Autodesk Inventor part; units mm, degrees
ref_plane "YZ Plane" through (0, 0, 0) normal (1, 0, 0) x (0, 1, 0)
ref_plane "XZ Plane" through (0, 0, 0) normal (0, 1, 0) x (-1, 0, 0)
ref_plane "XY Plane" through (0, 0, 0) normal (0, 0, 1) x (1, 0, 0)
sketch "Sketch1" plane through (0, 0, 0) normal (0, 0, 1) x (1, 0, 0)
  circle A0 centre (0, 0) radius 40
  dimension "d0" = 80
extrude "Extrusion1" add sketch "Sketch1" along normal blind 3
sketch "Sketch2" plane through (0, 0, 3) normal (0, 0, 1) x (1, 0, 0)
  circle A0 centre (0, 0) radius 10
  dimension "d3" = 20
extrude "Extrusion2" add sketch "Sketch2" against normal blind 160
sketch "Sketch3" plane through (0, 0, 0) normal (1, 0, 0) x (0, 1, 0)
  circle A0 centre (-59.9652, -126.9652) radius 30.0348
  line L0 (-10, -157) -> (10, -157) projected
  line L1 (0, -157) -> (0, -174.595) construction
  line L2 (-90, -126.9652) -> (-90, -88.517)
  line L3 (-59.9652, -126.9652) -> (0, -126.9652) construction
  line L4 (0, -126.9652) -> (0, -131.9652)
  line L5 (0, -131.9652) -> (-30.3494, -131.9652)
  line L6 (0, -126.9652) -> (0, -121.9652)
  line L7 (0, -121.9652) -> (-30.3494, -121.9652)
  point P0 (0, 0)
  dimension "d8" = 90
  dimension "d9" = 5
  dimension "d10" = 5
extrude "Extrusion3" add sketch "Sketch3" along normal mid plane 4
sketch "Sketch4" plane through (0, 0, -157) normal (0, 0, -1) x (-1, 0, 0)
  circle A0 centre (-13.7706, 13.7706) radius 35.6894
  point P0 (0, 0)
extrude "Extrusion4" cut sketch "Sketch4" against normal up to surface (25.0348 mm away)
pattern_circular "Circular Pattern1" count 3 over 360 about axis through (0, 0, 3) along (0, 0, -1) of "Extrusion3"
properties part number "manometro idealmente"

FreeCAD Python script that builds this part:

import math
import FreeCAD as App
import Part
import Sketcher

doc = App.newDocument("Part")
body = doc.addObject("PartDesign::Body", "Body")

# Sketch on XY plane
sketch1 = doc.addObject("Sketcher::SketchObject", "Sketch")
body.addObject(sketch1)
sketch1.AttachmentSupport = (doc.XY_Plane, [""])
sketch1.MapMode = "FlatFace"
sketch1.addGeometry(Part.Circle(App.Vector(0, 0, 0), App.Vector(0, 0, 1), 40), False)
sketch1.addConstraint([
    Sketcher.Constraint("Coincident", 0, 3, -1, 1),
    Sketcher.Constraint("Diameter", 0, 80.0),
])
pad1 = doc.addObject("PartDesign::Pad", "Pad")
body.addObject(pad1)
pad1.Profile = sketch1
pad1.Length = 3

# Sketch on XY plane
sketch2 = doc.addObject("Sketcher::SketchObject", "Sketch001")
body.addObject(sketch2)
sketch2.AttachmentSupport = (doc.XY_Plane, [""])
sketch2.MapMode = "FlatFace"
sketch2.AttachmentOffset = App.Placement(App.Vector(0, 0, 3), App.Rotation())
sketch2.addGeometry(Part.Circle(App.Vector(0, 0, 0), App.Vector(0, 0, 1), 10), False)
sketch2.addConstraint([
    Sketcher.Constraint("Coincident", 0, 3, -1, 1),
    Sketcher.Constraint("Diameter", 0, 20.0),
])
pad2 = doc.addObject("PartDesign::Pad", "Pad001")
body.addObject(pad2)
pad2.Profile = sketch2
pad2.Length = 160
pad2.Reversed = True

# Sketch on YZ plane
sketch3 = doc.addObject("Sketcher::SketchObject", "Sketch002")
body.addObject(sketch3)
sketch3.AttachmentSupport = (doc.YZ_Plane, [""])
sketch3.MapMode = "FlatFace"
sketch3.addGeometry([
    Part.LineSegment(App.Vector(-30, -132, 0), App.Vector(0, -132, 0)),
    Part.LineSegment(App.Vector(0, -132, 0), App.Vector(0, -122, 0)),
    Part.LineSegment(App.Vector(0, -122, 0), App.Vector(-30, -122, 0)),
    Part.ArcOfCircle(Part.Circle(App.Vector(-60, -127, 0), App.Vector(0, 0, 1), 30), math.radians(10), math.radians(350)),
], False)
sketch3.addConstraint([
    Sketcher.Constraint("Coincident", 0, 2, 1, 1),
    Sketcher.Constraint("Coincident", 1, 2, 2, 1),
    Sketcher.Constraint("Coincident", 2, 2, 3, 1),
    Sketcher.Constraint("Coincident", 3, 2, 0, 1),
    Sketcher.Constraint("Horizontal", 0),
    Sketcher.Constraint("Vertical", 1),
    Sketcher.Constraint("Horizontal", 2),
    Sketcher.Constraint("PointOnObject", 0, 2, -2),
    Sketcher.Constraint("Vertical", 2, 2, 3, 2),
    Sketcher.Constraint("DistanceY", 0, 2, 3, 3, 5.0),
    Sketcher.Constraint("Radius", 3, 30.0348),
    Sketcher.Constraint("DistanceX", 0, 1, 0, 2, 30.3494),
    Sketcher.Constraint("DistanceY", 3, 3, -1, 1, 126.9652),
])
pad3 = doc.addObject("PartDesign::Pad", "Pad002")
body.addObject(pad3)
pad3.Profile = sketch3
pad3.Length = 4
pad3.Midplane = True

# Sketch on XY plane
sketch4 = doc.addObject("Sketcher::SketchObject", "Sketch003")
body.addObject(sketch4)
sketch4.AttachmentSupport = (doc.XY_Plane, [""])
sketch4.MapMode = "FlatFace"
sketch4.AttachmentOffset = App.Placement(App.Vector(0, 0, -157), App.Rotation())
sketch4.addGeometry(Part.Circle(App.Vector(14, 14, 0), App.Vector(0, 0, 1), 36), False)
sketch4.addConstraint([
    Sketcher.Constraint("Diameter", 0, 71.3788),
    Sketcher.Constraint("DistanceX", -1, 1, 0, 3, 13.7706),
    Sketcher.Constraint("DistanceY", -1, 1, 0, 3, 13.7706),
])
pocket1 = doc.addObject("PartDesign::Pocket", "Pocket")
body.addObject(pocket1)
pocket1.Profile = sketch4
pocket1.Length = 25.0348
pocket1.Reversed = True
doc.recompute()

polarpattern = doc.addObject("PartDesign::PolarPattern", "PolarPattern")
body.addObject(polarpattern)
polarpattern.Originals = [pad3]
polarpattern.Axis = (doc.Z_Axis, [""])
polarpattern.Angle = 360
polarpattern.Occurrences = 3
body.Tip = polarpattern

doc.recompute()
